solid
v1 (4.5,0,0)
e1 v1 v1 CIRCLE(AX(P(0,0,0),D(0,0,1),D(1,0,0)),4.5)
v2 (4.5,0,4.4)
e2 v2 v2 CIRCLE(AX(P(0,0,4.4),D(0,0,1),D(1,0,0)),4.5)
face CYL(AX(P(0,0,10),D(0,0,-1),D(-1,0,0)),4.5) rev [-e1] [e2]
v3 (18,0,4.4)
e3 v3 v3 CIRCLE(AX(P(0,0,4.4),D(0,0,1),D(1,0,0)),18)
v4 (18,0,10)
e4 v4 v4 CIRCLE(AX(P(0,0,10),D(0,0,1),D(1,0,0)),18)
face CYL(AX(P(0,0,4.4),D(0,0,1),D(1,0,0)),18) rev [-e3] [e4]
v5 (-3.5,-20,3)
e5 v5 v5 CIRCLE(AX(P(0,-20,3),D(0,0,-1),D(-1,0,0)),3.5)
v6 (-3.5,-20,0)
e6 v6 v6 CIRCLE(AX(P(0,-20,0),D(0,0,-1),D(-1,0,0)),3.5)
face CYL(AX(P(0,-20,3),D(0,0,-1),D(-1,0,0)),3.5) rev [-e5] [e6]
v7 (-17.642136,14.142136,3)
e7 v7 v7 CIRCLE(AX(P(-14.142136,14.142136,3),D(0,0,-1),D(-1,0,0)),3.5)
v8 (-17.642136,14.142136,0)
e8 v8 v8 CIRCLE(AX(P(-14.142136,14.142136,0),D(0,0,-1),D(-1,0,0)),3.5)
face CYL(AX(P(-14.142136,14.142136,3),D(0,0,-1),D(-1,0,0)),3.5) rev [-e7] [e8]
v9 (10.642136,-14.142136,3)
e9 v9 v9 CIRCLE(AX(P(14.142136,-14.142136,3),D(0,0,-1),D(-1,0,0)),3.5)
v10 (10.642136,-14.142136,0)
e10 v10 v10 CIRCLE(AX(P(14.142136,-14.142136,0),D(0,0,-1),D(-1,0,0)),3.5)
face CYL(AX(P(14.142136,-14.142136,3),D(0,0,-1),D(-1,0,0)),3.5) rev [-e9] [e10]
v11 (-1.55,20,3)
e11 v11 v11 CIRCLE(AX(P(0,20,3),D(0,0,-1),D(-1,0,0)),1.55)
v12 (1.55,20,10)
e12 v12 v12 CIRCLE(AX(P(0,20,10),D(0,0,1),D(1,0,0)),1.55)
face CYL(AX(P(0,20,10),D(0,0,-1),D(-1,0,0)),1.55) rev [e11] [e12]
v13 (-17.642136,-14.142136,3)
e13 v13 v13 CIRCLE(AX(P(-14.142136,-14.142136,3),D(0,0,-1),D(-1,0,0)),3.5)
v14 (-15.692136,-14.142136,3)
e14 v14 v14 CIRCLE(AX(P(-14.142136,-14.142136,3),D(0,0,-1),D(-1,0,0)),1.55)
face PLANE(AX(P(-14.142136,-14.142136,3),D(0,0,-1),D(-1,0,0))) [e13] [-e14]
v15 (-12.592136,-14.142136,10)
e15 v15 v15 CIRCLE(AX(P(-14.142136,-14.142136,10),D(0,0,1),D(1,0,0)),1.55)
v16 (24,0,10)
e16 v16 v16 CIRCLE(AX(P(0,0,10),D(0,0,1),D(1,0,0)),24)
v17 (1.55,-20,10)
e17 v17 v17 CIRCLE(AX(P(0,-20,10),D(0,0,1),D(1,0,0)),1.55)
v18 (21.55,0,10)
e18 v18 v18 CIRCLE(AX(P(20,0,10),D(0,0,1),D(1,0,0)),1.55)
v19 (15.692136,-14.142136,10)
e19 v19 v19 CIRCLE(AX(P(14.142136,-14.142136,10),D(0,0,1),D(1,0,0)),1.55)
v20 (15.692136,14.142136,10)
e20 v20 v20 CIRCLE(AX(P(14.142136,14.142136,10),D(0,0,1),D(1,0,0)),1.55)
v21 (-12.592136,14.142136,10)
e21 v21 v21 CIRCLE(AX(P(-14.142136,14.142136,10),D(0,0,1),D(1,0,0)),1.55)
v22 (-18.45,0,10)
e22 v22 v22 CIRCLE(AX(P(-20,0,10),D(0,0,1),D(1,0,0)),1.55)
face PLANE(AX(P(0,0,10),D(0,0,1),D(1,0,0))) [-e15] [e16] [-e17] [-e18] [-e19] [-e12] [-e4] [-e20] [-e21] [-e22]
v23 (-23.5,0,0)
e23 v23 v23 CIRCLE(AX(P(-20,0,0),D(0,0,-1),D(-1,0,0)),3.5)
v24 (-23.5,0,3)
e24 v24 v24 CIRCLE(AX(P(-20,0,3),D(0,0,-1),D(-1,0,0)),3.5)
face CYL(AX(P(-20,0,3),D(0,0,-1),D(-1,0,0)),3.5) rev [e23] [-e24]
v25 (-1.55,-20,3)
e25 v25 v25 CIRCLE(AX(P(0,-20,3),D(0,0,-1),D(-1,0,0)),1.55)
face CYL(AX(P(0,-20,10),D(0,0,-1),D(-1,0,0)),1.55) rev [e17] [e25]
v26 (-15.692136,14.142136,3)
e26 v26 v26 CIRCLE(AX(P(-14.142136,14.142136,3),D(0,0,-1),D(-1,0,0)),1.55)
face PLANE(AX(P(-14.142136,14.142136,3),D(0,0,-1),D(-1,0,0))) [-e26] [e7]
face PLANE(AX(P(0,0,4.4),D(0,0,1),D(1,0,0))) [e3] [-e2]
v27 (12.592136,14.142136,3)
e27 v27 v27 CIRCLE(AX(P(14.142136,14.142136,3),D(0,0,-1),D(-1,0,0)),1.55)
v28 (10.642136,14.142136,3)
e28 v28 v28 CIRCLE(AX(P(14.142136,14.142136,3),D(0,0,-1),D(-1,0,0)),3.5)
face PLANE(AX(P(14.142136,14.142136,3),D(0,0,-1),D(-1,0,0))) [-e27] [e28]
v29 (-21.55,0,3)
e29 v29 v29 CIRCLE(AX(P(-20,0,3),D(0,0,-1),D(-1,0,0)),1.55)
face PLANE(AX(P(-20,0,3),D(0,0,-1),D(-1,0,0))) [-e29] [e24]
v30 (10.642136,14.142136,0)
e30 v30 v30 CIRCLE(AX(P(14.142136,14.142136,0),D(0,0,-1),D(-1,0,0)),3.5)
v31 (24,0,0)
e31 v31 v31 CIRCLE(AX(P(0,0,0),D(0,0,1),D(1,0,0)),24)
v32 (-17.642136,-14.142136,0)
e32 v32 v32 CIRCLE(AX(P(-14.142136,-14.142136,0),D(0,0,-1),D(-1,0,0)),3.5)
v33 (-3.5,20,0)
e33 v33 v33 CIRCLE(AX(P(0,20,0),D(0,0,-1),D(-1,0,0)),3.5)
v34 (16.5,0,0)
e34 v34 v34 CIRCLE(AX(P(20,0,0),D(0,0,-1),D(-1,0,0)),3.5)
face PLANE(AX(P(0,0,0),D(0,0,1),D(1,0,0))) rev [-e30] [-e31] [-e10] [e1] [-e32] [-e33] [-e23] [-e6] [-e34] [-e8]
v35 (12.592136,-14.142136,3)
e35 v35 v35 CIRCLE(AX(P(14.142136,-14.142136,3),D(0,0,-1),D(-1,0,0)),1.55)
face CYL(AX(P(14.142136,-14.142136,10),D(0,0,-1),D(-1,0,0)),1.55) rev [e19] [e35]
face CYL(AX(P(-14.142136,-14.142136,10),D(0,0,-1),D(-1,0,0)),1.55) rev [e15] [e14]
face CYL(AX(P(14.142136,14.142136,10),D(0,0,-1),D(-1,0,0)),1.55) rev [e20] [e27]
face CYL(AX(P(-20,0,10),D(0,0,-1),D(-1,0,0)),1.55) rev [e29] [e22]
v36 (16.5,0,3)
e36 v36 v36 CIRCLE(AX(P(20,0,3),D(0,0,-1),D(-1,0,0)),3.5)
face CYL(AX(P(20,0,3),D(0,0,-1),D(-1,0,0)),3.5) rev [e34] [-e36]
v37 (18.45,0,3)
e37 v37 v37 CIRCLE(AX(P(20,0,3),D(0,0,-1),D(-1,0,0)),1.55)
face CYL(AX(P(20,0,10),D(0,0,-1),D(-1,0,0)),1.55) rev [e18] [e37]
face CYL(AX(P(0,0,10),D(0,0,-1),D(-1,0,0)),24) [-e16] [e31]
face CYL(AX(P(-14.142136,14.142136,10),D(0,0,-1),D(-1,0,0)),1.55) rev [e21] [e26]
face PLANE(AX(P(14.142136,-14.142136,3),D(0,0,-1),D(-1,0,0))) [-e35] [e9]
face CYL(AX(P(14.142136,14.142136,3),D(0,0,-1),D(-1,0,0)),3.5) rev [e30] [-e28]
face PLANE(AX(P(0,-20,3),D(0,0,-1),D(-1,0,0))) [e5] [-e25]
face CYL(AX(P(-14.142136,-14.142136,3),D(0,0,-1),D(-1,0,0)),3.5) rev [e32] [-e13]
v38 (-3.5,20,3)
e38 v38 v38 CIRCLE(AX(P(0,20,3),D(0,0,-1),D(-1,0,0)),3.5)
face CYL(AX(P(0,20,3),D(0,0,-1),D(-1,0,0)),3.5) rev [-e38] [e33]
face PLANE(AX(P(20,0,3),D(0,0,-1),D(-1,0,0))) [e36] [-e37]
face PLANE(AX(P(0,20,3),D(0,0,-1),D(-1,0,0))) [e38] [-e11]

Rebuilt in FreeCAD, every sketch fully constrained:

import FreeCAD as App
import Part
import Sketcher
from FreeCAD import Vector

doc = App.newDocument("Part")
body = doc.addObject("PartDesign::Body", "Body")

# Sketch on XY plane
sketch1 = body.newObject("Sketcher::SketchObject", "Sketch")
sketch1.AttachmentSupport = (doc.getObject("XY_Plane"), [""])
sketch1.MapMode = "FlatFace"
sketch1.addGeometry(Part.Circle(Vector(0, 0, 0), Vector(0, 0, 1), 24), False)
sketch1.addGeometry(Part.Circle(Vector(-14.1, -14.1, 0), Vector(0, 0, 1), 1.6), False)
sketch1.addGeometry(Part.Circle(Vector(0, -20, 0), Vector(0, 0, 1), 1.6), False)
sketch1.addGeometry(Part.Circle(Vector(14.1, -14.1, 0), Vector(0, 0, 1), 1.6), False)
sketch1.addGeometry(Part.Circle(Vector(-20, 0, 0), Vector(0, 0, 1), 1.6), False)
sketch1.addGeometry(Part.Circle(Vector(-14.1, 14.1, 0), Vector(0, 0, 1), 1.6), False)
sketch1.addGeometry(Part.Circle(Vector(0, 0, 0), Vector(0, 0, 1), 4.5), False)
sketch1.addGeometry(Part.Circle(Vector(20, 0, 0), Vector(0, 0, 1), 1.6), False)
sketch1.addGeometry(Part.Circle(Vector(0, 20, 0), Vector(0, 0, 1), 1.6), False)
sketch1.addGeometry(Part.Circle(Vector(14.1, 14.1, 0), Vector(0, 0, 1), 1.6), False)
sketch1.addConstraint(Sketcher.Constraint("Coincident", 0, 3, -1, 1))
sketch1.addConstraint(Sketcher.Constraint("Coincident", 6, 3, -1, 1))
sketch1.addConstraint(Sketcher.Constraint("Equal", 1, 2))
sketch1.addConstraint(Sketcher.Constraint("Equal", 2, 3))
sketch1.addConstraint(Sketcher.Constraint("Equal", 3, 4))
sketch1.addConstraint(Sketcher.Constraint("Equal", 4, 5))
sketch1.addConstraint(Sketcher.Constraint("Equal", 5, 7))
sketch1.addConstraint(Sketcher.Constraint("Equal", 7, 8))
sketch1.addConstraint(Sketcher.Constraint("Equal", 8, 9))
sketch1.addConstraint(Sketcher.Constraint("Symmetric", 3, 3, 5, 3, -1, 1))
sketch1.addConstraint(Sketcher.Constraint("Symmetric", 4, 3, 7, 3, -1, 1))
sketch1.addConstraint(Sketcher.Constraint("Symmetric", 2, 3, 8, 3, -1, 1))
sketch1.addConstraint(Sketcher.Constraint("Symmetric", 1, 3, 9, 3, -1, 1))
sketch1.addConstraint(Sketcher.Constraint("Symmetric", 1, 3, 3, 3, -2))
sketch1.addConstraint(Sketcher.Constraint("PointOnObject", 2, 3, -2))
sketch1.addConstraint(Sketcher.Constraint("PointOnObject", 4, 3, -1))
sketch1.addConstraint(Sketcher.Constraint("Diameter", 0, 48.0))
sketch1.addConstraint(Sketcher.Constraint("Diameter", 6, 9.0))
sketch1.addConstraint(Sketcher.Constraint("Diameter", 1, 3.1))
sketch1.addConstraint(Sketcher.Constraint("DistanceY", 2, 3, -1, 1, 20.0))
sketch1.addConstraint(Sketcher.Constraint("DistanceX", 4, 3, -1, 1, 20.0))
sketch1.addConstraint(Sketcher.Constraint("DistanceX", 1, 3, 3, 3, 28.284271))
sketch1.addConstraint(Sketcher.Constraint("DistanceY", 1, 3, 5, 3, 28.284271))
pad1 = body.newObject("PartDesign::Pad", "Pad")
pad1.Profile = sketch1
pad1.Length = 10

# Sketch on XY plane
sketch2 = body.newObject("Sketcher::SketchObject", "Sketch001")
sketch2.AttachmentSupport = (doc.getObject("XY_Plane"), [""])
sketch2.MapMode = "FlatFace"
sketch2.addGeometry(Part.Circle(Vector(0, 20, 0), Vector(0, 0, 1), 3.5), False)
sketch2.addGeometry(Part.Circle(Vector(-14.1, 14.1, 0), Vector(0, 0, 1), 3.5), False)
sketch2.addGeometry(Part.Circle(Vector(-20, 0, 0), Vector(0, 0, 1), 3.5), False)
sketch2.addGeometry(Part.Circle(Vector(-14.1, -14.1, 0), Vector(0, 0, 1), 3.5), False)
sketch2.addGeometry(Part.Circle(Vector(0, -20, 0), Vector(0, 0, 1), 3.5), False)
sketch2.addGeometry(Part.Circle(Vector(14.1, -14.1, 0), Vector(0, 0, 1), 3.5), False)
sketch2.addGeometry(Part.Circle(Vector(20, 0, 0), Vector(0, 0, 1), 3.5), False)
sketch2.addGeometry(Part.Circle(Vector(14.1, 14.1, 0), Vector(0, 0, 1), 3.5), False)
sketch2.addConstraint(Sketcher.Constraint("Equal", 0, 1))
sketch2.addConstraint(Sketcher.Constraint("Equal", 1, 2))
sketch2.addConstraint(Sketcher.Constraint("Equal", 2, 3))
sketch2.addConstraint(Sketcher.Constraint("Equal", 3, 4))
sketch2.addConstraint(Sketcher.Constraint("Equal", 4, 5))
sketch2.addConstraint(Sketcher.Constraint("Equal", 5, 6))
sketch2.addConstraint(Sketcher.Constraint("Equal", 6, 7))
sketch2.addConstraint(Sketcher.Constraint("Symmetric", 0, 3, 4, 3, -1, 1))
sketch2.addConstraint(Sketcher.Constraint("Symmetric", 1, 3, 5, 3, -1, 1))
sketch2.addConstraint(Sketcher.Constraint("Symmetric", 2, 3, 6, 3, -1, 1))
sketch2.addConstraint(Sketcher.Constraint("Symmetric", 3, 3, 7, 3, -1, 1))
sketch2.addConstraint(Sketcher.Constraint("Symmetric", 3, 3, 5, 3, -2))
sketch2.addConstraint(Sketcher.Constraint("PointOnObject", 0, 3, -2))
sketch2.addConstraint(Sketcher.Constraint("PointOnObject", 2, 3, -1))
sketch2.addConstraint(Sketcher.Constraint("Diameter", 0, 7.0))
sketch2.addConstraint(Sketcher.Constraint("DistanceY", -1, 1, 0, 3, 20.0))
sketch2.addConstraint(Sketcher.Constraint("DistanceX", 2, 3, -1, 1, 20.0))
sketch2.addConstraint(Sketcher.Constraint("DistanceY", 3, 3, 1, 3, 28.284271))
sketch2.addConstraint(Sketcher.Constraint("DistanceX", 3, 3, 5, 3, 28.284271))
pocket1 = body.newObject("PartDesign::Pocket", "Pocket")
pocket1.Profile = sketch2
pocket1.Length = 3
pocket1.Reversed = True

# Sketch on XY plane
sketch3 = body.newObject("Sketcher::SketchObject", "Sketch002")
sketch3.AttachmentSupport = (doc.getObject("XY_Plane"), [""])
sketch3.MapMode = "FlatFace"
sketch3.AttachmentOffset = App.Placement(Vector(0, 0, 10), App.Rotation())
sketch3.addGeometry(Part.Circle(Vector(0, 0, 0), Vector(0, 0, 1), 18), False)
sketch3.addConstraint(Sketcher.Constraint("Coincident", 0, 3, -1, 1))
sketch3.addConstraint(Sketcher.Constraint("Diameter", 0, 36.0))
pocket2 = body.newObject("PartDesign::Pocket", "Pocket001")
pocket2.Profile = sketch3
pocket2.Length = 5.6

doc.recompute()
